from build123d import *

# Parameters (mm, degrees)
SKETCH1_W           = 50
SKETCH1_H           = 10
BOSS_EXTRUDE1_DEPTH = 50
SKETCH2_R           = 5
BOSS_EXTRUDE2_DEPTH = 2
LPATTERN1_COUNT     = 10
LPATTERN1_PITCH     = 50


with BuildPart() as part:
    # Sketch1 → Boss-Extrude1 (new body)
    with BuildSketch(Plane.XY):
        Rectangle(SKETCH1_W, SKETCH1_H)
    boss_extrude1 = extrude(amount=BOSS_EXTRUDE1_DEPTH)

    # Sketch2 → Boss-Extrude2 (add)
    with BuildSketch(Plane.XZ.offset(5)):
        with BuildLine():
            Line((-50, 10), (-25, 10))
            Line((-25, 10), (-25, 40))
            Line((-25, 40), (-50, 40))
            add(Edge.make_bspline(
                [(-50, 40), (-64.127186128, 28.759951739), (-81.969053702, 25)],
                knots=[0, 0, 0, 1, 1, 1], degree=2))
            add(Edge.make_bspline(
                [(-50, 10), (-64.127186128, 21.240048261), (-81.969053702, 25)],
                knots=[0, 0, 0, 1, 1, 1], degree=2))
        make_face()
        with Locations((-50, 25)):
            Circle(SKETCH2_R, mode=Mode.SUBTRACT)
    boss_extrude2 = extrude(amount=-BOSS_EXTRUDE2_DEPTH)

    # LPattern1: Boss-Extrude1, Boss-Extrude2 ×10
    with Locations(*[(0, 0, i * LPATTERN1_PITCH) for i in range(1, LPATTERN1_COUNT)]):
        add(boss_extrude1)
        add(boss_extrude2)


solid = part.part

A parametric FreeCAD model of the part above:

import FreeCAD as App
import Part
import Sketcher

V = App.Vector
Q = App.Units.Quantity


def add_polygon(sketch, points):
    """Adds a closed chain of lines whose ends are joined by coincident constraints."""
    first, n = sketch.GeometryCount, len(points)
    for a, b in zip(points, points[1:] + points[:1]):
        sketch.addGeometry(Part.LineSegment(App.Vector(*a, 0), App.Vector(*b, 0)), False)
    for i in range(n):
        sketch.addConstraint(Sketcher.Constraint("Coincident", first + i, 2, first + (i + 1) % n, 1))

doc = App.newDocument("Part")
body = doc.addObject("PartDesign::Body", "Body")

sketch1 = doc.addObject("Sketcher::SketchObject", "Sketch")
body.addObject(sketch1)
sketch1.AttachmentSupport = (doc.XY_Plane, [""])
sketch1.MapMode = "FlatFace"
add_polygon(sketch1, [(-25, 5), (-25, -5), (25, -5), (25, 5)])
sketch1.addConstraint(Sketcher.Constraint("Vertical", 0))
sketch1.addConstraint(Sketcher.Constraint("Horizontal", 1))
sketch1.addConstraint(Sketcher.Constraint("Vertical", 2))
sketch1.addConstraint(Sketcher.Constraint("Horizontal", 3))
sketch1.addConstraint(Sketcher.Constraint("Symmetric", 0, 2, 2, 2, -1, 1))
sketch1.addConstraint(Sketcher.Constraint("DistanceX", 1, 1, 1, 2, Q("50 mm")))
sketch1.addConstraint(Sketcher.Constraint("DistanceY", 0, 2, 0, 1, Q("10 mm")))
pad1 = doc.addObject("PartDesign::Pad", "Pad")
body.addObject(pad1)
pad1.Profile = sketch1
pad1.Length = 50

sketch2 = doc.addObject("Sketcher::SketchObject", "Sketch001")
body.addObject(sketch2)
sketch2.AttachmentSupport = (doc.XZ_Plane, [""])
sketch2.MapMode = "FlatFace"
sketch2.AttachmentOffset = App.Placement(V(0, 0, 5), App.Rotation())
sketch2.addGeometry(Part.LineSegment(V(-50, 10, 0), V(-25, 10, 0)), False)
sketch2.addGeometry(Part.LineSegment(V(-25, 10, 0), V(-25, 40, 0)), False)
sketch2.addGeometry(Part.LineSegment(V(-25, 40, 0), V(-50, 40, 0)), False)
sketch2.addGeometry(Part.BSplineCurve([V(-50, 40, 0), V(-64.127186, 28.759952, 0), V(-81.969054, 25, 0)], [3, 3], [0, 1], False, 2, [1, 1, 1], False), False)
sketch2.addGeometry(Part.BSplineCurve([V(-50, 10, 0), V(-64.127186, 21.240048, 0), V(-81.969054, 25, 0)], [3, 3], [0, 1], False, 2, [1, 1, 1], False), False)
sketch2.addGeometry(Part.Circle(V(-50, 25, 0), V(0, 0, 1), 5), False)
sketch2.addConstraint(Sketcher.Constraint("Block", 3))
sketch2.addConstraint(Sketcher.Constraint("Block", 4))
sketch2.addConstraint(Sketcher.Constraint("Coincident", 0, 2, 1, 1))
sketch2.addConstraint(Sketcher.Constraint("Coincident", 1, 2, 2, 1))
sketch2.addConstraint(Sketcher.Constraint("Coincident", 2, 2, 3, 1))
sketch2.addConstraint(Sketcher.Constraint("Coincident", 4, 1, 0, 1))
sketch2.addConstraint(Sketcher.Constraint("Horizontal", 0))
sketch2.addConstraint(Sketcher.Constraint("Vertical", 1))
sketch2.addConstraint(Sketcher.Constraint("Horizontal", 2))
sketch2.addConstraint(Sketcher.Constraint("Vertical", 5, 3, 2, 2))
sketch2.addConstraint(Sketcher.Constraint("Diameter", 5, Q("10 mm")))
sketch2.addConstraint(Sketcher.Constraint("DistanceX", 0, 1, 0, 2, Q("25 mm")))
sketch2.addConstraint(Sketcher.Constraint("DistanceY", -1, 1, 5, 3, Q("25 mm")))
pad2 = doc.addObject("PartDesign::Pad", "Pad001")
body.addObject(pad2)
pad2.Profile = sketch2
pad2.Length = 2
pad2.Reversed = True
doc.recompute()

linearpattern = doc.addObject("PartDesign::LinearPattern", "LinearPattern")
body.addObject(linearpattern)
linearpattern.Originals = [pad1, pad2]
linearpattern.Direction = (doc.Z_Axis, [""])
linearpattern.Mode = "offset"
linearpattern.Offset = 50
linearpattern.Occurrences = 10
body.Tip = linearpattern

doc.recompute()
